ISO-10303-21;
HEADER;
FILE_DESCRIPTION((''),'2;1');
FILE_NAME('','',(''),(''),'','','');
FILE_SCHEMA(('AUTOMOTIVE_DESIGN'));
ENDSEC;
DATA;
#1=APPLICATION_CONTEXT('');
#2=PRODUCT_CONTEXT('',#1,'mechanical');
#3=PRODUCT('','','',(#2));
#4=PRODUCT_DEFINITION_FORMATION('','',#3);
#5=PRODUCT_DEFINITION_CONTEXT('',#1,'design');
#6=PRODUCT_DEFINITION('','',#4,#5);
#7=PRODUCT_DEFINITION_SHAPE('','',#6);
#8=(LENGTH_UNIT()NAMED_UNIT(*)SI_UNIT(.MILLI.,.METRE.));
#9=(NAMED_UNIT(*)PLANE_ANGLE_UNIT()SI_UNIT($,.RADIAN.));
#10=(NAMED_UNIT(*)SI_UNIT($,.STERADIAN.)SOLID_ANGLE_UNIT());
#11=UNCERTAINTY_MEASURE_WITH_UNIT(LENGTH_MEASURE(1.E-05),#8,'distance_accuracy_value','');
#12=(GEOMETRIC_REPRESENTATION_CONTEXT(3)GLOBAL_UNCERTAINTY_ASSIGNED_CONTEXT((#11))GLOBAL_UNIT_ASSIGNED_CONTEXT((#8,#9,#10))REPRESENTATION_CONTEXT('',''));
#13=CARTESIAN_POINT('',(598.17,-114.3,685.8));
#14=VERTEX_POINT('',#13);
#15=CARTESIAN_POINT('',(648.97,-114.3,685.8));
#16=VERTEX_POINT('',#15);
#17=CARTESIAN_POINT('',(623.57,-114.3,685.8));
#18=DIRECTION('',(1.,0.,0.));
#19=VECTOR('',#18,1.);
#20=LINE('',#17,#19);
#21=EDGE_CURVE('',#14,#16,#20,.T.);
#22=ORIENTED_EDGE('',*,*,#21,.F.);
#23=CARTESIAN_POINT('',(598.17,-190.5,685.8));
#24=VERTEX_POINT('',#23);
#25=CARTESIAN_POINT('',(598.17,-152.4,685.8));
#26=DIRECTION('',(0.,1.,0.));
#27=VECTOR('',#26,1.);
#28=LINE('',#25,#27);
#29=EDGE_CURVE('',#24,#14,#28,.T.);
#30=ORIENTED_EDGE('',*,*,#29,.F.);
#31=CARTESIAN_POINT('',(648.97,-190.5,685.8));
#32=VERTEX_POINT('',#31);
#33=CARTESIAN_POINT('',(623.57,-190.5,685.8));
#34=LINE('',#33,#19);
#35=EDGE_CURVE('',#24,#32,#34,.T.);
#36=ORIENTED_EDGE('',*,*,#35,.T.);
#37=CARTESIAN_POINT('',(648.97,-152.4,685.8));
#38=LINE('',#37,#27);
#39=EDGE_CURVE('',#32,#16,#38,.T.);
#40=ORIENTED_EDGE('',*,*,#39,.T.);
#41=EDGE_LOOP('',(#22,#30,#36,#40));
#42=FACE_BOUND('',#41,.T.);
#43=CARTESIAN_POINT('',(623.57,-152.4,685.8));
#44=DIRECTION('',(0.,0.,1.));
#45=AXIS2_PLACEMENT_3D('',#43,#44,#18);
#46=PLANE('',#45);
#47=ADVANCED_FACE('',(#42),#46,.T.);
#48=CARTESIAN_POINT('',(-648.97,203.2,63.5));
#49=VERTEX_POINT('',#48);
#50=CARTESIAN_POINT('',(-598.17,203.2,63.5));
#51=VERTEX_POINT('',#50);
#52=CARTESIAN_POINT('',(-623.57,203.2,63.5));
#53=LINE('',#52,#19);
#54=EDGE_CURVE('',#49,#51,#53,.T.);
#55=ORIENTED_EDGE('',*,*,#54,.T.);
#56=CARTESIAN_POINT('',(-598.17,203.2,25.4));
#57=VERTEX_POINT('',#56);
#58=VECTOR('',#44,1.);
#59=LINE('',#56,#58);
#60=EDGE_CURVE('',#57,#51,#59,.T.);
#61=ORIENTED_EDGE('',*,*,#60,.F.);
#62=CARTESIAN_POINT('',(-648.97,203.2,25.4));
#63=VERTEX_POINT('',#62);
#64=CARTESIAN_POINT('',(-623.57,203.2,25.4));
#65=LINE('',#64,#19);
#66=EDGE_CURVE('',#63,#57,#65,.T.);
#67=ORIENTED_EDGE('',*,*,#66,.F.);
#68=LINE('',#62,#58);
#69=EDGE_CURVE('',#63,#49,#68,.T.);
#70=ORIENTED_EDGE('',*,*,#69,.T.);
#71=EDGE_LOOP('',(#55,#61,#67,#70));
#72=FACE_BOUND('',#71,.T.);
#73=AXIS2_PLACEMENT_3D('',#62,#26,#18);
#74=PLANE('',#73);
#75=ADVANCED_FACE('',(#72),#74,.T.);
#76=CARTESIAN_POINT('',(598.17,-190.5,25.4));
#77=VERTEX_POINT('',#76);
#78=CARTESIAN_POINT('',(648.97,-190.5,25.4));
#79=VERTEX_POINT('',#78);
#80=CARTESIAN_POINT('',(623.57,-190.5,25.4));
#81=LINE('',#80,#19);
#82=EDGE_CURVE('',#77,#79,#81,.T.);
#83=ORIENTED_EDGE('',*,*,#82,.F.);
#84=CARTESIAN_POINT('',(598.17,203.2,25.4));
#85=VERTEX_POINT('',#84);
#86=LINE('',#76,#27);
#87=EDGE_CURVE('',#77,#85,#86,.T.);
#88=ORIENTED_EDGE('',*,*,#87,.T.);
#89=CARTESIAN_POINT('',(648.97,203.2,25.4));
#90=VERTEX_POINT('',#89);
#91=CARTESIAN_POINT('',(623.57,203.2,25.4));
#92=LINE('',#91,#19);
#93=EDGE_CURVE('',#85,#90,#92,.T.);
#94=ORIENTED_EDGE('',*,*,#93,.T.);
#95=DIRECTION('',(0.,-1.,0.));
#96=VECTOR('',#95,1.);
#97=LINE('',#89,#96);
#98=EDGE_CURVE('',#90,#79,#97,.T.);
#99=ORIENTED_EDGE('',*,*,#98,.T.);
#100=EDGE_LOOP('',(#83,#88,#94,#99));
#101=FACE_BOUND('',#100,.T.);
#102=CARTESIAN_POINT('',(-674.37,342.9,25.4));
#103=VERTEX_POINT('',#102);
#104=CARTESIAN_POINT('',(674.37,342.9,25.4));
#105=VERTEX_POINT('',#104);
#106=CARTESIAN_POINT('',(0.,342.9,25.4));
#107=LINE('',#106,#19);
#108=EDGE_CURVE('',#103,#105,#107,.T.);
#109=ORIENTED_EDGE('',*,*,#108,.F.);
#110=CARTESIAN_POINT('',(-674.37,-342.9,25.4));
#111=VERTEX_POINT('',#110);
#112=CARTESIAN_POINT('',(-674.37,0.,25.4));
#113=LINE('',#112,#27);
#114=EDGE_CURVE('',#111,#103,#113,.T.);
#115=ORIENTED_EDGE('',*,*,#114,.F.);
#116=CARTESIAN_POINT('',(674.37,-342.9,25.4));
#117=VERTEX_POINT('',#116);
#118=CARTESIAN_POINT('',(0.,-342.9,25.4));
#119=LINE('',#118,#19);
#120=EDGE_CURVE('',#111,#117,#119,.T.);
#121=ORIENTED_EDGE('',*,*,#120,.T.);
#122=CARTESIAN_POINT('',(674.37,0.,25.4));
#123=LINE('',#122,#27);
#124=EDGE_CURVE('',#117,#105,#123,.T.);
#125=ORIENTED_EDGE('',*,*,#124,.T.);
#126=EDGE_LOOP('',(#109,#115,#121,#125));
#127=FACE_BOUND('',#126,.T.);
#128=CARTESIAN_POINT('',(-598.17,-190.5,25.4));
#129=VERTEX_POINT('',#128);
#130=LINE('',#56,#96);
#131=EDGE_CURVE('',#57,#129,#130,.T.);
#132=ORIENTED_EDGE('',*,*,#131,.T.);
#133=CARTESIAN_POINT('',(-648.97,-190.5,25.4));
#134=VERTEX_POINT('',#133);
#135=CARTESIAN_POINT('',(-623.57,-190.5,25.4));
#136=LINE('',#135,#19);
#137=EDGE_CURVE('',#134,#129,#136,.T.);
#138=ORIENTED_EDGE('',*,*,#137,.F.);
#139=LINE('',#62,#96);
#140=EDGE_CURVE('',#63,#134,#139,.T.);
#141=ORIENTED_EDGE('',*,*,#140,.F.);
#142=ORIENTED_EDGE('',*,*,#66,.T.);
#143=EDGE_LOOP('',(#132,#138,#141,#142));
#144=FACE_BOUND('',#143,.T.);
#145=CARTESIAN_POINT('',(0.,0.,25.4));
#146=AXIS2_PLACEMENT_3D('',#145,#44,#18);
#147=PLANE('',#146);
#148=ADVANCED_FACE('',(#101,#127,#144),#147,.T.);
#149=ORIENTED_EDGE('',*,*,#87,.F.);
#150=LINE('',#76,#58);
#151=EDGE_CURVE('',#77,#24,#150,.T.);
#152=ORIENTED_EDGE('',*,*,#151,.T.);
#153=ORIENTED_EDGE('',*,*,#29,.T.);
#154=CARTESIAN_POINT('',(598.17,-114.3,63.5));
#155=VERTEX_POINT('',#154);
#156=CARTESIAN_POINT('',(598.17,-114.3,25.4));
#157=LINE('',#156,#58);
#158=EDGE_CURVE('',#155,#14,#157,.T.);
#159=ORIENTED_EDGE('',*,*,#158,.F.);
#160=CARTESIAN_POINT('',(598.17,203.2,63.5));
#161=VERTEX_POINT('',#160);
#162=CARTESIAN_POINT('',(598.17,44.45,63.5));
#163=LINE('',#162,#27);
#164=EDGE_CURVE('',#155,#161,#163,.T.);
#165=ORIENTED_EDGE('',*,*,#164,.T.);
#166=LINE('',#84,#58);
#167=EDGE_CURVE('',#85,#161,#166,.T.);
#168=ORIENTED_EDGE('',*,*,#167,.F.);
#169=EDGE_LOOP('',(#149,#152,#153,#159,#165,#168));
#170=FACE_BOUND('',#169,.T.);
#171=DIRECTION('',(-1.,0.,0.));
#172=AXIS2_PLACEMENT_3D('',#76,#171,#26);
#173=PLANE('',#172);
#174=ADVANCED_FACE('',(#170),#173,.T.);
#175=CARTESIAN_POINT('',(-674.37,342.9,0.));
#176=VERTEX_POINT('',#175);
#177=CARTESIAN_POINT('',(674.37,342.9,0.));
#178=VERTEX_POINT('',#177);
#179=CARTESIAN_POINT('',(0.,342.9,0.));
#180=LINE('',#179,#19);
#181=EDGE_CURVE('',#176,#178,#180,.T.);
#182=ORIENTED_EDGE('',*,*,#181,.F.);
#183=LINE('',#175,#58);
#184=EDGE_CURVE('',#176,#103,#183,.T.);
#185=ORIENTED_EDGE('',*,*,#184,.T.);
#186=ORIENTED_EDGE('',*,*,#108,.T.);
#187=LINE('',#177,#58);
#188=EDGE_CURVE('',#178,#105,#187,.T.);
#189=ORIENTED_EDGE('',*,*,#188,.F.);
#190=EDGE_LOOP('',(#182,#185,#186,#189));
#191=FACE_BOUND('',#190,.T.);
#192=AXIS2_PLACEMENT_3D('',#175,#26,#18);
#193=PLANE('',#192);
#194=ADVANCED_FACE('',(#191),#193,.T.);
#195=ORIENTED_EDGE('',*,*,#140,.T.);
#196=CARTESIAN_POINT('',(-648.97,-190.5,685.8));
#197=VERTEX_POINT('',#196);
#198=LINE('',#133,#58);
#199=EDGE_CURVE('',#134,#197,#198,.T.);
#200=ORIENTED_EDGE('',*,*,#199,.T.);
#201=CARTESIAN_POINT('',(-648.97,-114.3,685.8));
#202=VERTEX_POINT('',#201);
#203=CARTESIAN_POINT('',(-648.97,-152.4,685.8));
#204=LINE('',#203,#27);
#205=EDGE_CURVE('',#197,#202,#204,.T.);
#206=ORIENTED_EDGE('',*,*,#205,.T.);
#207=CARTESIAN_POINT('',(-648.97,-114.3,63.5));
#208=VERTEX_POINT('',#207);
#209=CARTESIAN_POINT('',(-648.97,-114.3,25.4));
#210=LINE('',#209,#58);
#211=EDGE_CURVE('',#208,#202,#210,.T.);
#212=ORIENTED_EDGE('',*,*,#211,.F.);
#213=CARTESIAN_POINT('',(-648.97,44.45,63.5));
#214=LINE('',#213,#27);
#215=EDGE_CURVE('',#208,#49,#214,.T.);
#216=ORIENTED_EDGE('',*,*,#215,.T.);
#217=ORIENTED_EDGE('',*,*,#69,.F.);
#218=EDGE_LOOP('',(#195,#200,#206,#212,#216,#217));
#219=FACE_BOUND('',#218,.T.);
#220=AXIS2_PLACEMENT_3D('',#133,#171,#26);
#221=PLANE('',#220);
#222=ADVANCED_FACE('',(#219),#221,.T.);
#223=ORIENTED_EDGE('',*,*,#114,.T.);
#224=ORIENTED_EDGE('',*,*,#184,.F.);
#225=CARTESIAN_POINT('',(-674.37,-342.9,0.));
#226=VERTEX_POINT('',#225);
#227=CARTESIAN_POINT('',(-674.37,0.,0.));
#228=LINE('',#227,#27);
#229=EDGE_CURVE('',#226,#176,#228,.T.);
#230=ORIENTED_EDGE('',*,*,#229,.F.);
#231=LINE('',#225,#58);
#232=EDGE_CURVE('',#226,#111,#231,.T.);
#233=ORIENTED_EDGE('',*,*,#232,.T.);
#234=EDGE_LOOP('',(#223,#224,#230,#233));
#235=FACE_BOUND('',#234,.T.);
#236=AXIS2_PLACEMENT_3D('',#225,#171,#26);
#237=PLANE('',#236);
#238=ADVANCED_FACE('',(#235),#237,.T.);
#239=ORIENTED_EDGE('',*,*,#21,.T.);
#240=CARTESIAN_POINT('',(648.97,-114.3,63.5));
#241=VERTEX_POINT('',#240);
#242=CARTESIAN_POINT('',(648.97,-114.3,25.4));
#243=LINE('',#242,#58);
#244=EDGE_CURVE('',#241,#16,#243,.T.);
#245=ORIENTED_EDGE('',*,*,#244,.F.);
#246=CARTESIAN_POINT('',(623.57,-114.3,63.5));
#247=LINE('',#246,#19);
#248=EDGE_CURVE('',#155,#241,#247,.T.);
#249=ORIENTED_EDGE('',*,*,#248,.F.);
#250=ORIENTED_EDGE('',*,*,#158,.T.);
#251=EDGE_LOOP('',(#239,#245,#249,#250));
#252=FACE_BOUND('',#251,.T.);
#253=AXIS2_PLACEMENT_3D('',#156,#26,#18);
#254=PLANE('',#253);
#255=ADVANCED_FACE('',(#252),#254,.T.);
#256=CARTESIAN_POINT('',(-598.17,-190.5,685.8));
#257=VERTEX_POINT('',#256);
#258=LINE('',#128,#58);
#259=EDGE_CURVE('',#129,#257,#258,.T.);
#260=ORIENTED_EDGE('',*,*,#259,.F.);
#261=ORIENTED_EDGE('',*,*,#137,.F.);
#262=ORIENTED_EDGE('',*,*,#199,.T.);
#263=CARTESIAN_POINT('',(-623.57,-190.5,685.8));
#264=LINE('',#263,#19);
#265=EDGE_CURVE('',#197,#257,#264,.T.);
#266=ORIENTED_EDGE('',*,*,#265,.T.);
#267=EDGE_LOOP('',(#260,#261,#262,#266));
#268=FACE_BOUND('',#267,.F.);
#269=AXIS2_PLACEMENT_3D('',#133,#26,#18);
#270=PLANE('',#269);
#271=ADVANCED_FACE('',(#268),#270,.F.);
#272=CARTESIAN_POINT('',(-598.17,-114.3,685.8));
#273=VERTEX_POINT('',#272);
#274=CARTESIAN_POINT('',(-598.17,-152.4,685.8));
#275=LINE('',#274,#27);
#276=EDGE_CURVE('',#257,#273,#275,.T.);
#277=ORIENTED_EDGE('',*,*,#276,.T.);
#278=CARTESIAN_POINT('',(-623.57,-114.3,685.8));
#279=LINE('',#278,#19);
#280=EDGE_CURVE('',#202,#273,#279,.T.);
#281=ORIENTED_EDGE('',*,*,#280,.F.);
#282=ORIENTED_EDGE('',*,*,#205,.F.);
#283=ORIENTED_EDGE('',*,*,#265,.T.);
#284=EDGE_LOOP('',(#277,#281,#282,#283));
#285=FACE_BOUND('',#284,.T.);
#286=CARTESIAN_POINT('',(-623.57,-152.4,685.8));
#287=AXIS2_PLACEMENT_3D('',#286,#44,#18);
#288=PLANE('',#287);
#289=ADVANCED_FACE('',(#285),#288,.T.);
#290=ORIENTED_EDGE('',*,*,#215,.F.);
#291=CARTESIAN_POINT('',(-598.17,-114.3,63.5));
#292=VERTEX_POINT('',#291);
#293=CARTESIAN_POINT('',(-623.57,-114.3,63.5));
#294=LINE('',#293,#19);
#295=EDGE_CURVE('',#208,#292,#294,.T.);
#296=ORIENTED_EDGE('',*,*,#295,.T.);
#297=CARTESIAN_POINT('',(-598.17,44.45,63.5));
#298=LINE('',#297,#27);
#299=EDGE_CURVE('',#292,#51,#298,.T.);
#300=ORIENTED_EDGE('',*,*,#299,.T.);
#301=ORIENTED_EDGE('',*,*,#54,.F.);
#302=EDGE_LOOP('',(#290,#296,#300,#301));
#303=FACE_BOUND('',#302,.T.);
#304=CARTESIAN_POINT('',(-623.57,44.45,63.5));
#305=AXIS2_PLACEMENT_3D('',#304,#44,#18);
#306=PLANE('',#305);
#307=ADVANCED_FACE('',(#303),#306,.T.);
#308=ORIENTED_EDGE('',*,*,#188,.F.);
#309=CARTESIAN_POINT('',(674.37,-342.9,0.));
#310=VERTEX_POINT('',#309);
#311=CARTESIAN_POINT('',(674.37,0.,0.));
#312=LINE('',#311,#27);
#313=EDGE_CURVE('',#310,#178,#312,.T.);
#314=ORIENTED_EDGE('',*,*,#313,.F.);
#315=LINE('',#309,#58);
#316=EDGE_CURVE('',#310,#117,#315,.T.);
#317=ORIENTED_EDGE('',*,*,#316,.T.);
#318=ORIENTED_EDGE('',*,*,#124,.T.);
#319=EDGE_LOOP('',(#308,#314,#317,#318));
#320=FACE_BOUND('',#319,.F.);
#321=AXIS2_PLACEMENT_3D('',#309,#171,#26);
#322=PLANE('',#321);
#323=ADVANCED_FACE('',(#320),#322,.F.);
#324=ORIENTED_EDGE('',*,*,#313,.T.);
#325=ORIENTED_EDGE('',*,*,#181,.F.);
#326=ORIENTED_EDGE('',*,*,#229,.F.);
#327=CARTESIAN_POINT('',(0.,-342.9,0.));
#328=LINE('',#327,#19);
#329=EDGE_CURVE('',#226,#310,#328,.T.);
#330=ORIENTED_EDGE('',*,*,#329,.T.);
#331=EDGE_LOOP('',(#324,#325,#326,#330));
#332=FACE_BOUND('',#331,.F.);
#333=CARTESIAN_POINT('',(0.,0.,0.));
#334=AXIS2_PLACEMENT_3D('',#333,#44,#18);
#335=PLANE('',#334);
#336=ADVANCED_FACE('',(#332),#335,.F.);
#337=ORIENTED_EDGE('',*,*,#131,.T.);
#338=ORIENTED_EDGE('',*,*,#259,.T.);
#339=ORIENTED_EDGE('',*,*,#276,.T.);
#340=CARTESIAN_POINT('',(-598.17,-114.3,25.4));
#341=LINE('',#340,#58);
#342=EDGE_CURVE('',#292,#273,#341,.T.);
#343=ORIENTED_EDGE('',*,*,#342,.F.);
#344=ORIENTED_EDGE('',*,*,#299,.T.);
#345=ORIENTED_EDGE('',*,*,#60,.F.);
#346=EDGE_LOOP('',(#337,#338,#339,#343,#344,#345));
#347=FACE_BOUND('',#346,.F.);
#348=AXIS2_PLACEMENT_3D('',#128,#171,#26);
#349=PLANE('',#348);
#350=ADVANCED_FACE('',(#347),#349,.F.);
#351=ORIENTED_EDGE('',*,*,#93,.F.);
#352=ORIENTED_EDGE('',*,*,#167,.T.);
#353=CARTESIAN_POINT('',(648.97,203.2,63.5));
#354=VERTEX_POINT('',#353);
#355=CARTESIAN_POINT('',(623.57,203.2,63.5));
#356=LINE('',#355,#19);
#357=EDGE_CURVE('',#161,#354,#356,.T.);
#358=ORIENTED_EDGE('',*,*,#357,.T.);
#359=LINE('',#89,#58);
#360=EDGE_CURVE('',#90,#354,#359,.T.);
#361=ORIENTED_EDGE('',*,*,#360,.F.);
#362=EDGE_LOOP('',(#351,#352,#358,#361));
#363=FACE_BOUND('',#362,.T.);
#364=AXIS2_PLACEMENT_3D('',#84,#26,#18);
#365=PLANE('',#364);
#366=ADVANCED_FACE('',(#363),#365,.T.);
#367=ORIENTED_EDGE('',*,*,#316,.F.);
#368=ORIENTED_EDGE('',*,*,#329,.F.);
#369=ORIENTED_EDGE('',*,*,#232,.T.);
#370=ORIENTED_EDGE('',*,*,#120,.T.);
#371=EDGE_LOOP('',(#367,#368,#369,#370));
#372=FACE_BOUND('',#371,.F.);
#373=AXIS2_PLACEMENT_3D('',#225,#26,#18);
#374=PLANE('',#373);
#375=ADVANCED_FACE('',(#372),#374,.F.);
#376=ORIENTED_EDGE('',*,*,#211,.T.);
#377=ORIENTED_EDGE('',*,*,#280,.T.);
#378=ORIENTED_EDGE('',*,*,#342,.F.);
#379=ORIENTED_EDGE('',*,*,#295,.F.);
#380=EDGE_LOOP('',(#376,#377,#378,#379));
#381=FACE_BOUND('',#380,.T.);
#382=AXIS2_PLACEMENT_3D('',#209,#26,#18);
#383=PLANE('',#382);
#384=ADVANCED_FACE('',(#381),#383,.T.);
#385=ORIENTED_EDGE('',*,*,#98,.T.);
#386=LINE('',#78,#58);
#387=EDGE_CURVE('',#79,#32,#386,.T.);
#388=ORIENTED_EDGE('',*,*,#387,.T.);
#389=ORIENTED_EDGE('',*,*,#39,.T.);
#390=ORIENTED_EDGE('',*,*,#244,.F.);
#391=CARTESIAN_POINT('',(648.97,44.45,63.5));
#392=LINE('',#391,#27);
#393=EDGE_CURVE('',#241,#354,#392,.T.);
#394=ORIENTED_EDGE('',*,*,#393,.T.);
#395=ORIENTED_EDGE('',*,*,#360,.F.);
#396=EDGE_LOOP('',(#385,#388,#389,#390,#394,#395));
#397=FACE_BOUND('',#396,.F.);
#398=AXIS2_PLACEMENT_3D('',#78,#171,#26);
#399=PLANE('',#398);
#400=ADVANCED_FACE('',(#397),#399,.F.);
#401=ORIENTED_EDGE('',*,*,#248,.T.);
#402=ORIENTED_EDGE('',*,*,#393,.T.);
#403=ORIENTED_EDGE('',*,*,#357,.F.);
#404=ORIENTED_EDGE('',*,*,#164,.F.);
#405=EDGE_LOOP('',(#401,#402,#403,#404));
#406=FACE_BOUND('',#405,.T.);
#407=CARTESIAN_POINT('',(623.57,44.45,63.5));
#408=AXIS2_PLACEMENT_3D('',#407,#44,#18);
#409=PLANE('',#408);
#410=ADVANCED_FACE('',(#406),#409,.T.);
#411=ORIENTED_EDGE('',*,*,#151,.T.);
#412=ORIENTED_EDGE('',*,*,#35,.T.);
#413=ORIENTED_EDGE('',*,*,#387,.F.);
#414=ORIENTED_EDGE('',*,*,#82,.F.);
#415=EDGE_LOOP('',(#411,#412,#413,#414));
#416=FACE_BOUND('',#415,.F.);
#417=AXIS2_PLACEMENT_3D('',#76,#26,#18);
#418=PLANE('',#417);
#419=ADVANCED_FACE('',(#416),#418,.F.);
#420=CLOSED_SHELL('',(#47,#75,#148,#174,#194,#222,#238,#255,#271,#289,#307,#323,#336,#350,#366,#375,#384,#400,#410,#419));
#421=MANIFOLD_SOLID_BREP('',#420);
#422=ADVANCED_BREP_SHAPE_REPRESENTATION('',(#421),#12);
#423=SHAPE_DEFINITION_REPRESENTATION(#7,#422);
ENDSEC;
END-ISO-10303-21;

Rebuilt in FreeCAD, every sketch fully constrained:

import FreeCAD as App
import Part
import Sketcher
Q = App.Units.Quantity


def add_polygon(sketch, points):
    """Adds a closed chain of lines whose ends are joined by coincident constraints."""
    first, n = sketch.GeometryCount, len(points)
    for a, b in zip(points, points[1:] + points[:1]):
        sketch.addGeometry(Part.LineSegment(App.Vector(*a, 0), App.Vector(*b, 0)), False)
    for i in range(n):
        sketch.addConstraint(Sketcher.Constraint("Coincident", first + i, 2, first + (i + 1) % n, 1))

doc = App.newDocument("Part")
body = doc.addObject("PartDesign::Body", "Body")

# Sketch on XY plane
sketch1 = doc.addObject("Sketcher::SketchObject", "Sketch")
body.addObject(sketch1)
sketch1.AttachmentSupport = (doc.XY_Plane, [""])
sketch1.MapMode = "FlatFace"
add_polygon(sketch1, [(-674, 343), (-674, -343), (674, -343), (674, 343)])  # lines 0-3
sketch1.addConstraint([
    Sketcher.Constraint("Vertical", 0),
    Sketcher.Constraint("Horizontal", 1),
    Sketcher.Constraint("Vertical", 2),
    Sketcher.Constraint("Horizontal", 3),
    Sketcher.Constraint("Symmetric", 0, 2, 2, 2, -1, 1),
    Sketcher.Constraint("DistanceY", 0, 2, 0, 1, Q("27 in")),
    Sketcher.Constraint("DistanceX", 1, 1, 1, 2, Q("53.1 in")),
])
pad1 = doc.addObject("PartDesign::Pad", "Pad")
body.addObject(pad1)
pad1.Profile = sketch1
pad1.Length = Q("1 in")

# Sketch on XY plane
sketch2 = doc.addObject("Sketcher::SketchObject", "Sketch001")
body.addObject(sketch2)
sketch2.AttachmentSupport = (doc.XY_Plane, [""])
sketch2.MapMode = "FlatFace"
sketch2.AttachmentOffset = App.Placement(App.Vector(0, 0, 1 * 25.4), App.Rotation())
add_polygon(sketch2, [(-649, 203), (-649, -114), (-598, -114), (-598, 203)])  # lines 0-3
add_polygon(sketch2, [(598, 203), (598, -114), (649, -114), (649, 203)])  # lines 4-7
sketch2.addConstraint([
    Sketcher.Constraint("Vertical", 0),
    Sketcher.Constraint("Horizontal", 1),
    Sketcher.Constraint("Vertical", 2),
    Sketcher.Constraint("Horizontal", 3),
    Sketcher.Constraint("Vertical", 4),
    Sketcher.Constraint("Horizontal", 5),
    Sketcher.Constraint("Vertical", 6),
    Sketcher.Constraint("Horizontal", 7),
    Sketcher.Constraint("Symmetric", 1, 2, 4, 2, -2),
    Sketcher.Constraint("Symmetric", 3, 2, 6, 2, -2),
    Sketcher.Constraint("DistanceX", 1, 1, 1, 2, Q("2 in")),
    Sketcher.Constraint("DistanceY", 0, 2, 0, 1, Q("12.5 in")),
    Sketcher.Constraint("DistanceY", -1, 1, 2, 2, Q("8 in")),
    Sketcher.Constraint("DistanceX", 1, 2, 4, 2, Q("47.1 in")),
])
pad2 = doc.addObject("PartDesign::Pad", "Pad001")
body.addObject(pad2)
pad2.Profile = sketch2
pad2.Length = Q("1.5 in")

# Sketch on XY plane
sketch3 = doc.addObject("Sketcher::SketchObject", "Sketch002")
body.addObject(sketch3)
sketch3.AttachmentSupport = (doc.XY_Plane, [""])
sketch3.MapMode = "FlatFace"
sketch3.AttachmentOffset = App.Placement(App.Vector(0, 0, 1 * 25.4), App.Rotation())
add_polygon(sketch3, [(-649, -114), (-649, -190), (-598, -190), (-598, -114)])  # lines 0-3
add_polygon(sketch3, [(598, -114), (598, -190), (649, -190), (649, -114)])  # lines 4-7
sketch3.addConstraint([
    Sketcher.Constraint("Vertical", 0),
    Sketcher.Constraint("Horizontal", 1),
    Sketcher.Constraint("Vertical", 2),
    Sketcher.Constraint("Horizontal", 3),
    Sketcher.Constraint("Vertical", 4),
    Sketcher.Constraint("Horizontal", 5),
    Sketcher.Constraint("Vertical", 6),
    Sketcher.Constraint("Horizontal", 7),
    Sketcher.Constraint("Symmetric", 1, 2, 4, 2, -2),
    Sketcher.Constraint("Symmetric", 3, 2, 6, 2, -2),
    Sketcher.Constraint("DistanceX", 1, 1, 1, 2, Q("2 in")),
    Sketcher.Constraint("DistanceY", 0, 2, 0, 1, Q("3 in")),
    Sketcher.Constraint("DistanceY", 0, 2, -1, 1, Q("7.5 in")),
    Sketcher.Constraint("DistanceX", 1, 2, 4, 2, Q("47.1 in")),
])
pad3 = doc.addObject("PartDesign::Pad", "Pad002")
body.addObject(pad3)
pad3.Profile = sketch3
pad3.Length = Q("26 in")

doc.recompute()
